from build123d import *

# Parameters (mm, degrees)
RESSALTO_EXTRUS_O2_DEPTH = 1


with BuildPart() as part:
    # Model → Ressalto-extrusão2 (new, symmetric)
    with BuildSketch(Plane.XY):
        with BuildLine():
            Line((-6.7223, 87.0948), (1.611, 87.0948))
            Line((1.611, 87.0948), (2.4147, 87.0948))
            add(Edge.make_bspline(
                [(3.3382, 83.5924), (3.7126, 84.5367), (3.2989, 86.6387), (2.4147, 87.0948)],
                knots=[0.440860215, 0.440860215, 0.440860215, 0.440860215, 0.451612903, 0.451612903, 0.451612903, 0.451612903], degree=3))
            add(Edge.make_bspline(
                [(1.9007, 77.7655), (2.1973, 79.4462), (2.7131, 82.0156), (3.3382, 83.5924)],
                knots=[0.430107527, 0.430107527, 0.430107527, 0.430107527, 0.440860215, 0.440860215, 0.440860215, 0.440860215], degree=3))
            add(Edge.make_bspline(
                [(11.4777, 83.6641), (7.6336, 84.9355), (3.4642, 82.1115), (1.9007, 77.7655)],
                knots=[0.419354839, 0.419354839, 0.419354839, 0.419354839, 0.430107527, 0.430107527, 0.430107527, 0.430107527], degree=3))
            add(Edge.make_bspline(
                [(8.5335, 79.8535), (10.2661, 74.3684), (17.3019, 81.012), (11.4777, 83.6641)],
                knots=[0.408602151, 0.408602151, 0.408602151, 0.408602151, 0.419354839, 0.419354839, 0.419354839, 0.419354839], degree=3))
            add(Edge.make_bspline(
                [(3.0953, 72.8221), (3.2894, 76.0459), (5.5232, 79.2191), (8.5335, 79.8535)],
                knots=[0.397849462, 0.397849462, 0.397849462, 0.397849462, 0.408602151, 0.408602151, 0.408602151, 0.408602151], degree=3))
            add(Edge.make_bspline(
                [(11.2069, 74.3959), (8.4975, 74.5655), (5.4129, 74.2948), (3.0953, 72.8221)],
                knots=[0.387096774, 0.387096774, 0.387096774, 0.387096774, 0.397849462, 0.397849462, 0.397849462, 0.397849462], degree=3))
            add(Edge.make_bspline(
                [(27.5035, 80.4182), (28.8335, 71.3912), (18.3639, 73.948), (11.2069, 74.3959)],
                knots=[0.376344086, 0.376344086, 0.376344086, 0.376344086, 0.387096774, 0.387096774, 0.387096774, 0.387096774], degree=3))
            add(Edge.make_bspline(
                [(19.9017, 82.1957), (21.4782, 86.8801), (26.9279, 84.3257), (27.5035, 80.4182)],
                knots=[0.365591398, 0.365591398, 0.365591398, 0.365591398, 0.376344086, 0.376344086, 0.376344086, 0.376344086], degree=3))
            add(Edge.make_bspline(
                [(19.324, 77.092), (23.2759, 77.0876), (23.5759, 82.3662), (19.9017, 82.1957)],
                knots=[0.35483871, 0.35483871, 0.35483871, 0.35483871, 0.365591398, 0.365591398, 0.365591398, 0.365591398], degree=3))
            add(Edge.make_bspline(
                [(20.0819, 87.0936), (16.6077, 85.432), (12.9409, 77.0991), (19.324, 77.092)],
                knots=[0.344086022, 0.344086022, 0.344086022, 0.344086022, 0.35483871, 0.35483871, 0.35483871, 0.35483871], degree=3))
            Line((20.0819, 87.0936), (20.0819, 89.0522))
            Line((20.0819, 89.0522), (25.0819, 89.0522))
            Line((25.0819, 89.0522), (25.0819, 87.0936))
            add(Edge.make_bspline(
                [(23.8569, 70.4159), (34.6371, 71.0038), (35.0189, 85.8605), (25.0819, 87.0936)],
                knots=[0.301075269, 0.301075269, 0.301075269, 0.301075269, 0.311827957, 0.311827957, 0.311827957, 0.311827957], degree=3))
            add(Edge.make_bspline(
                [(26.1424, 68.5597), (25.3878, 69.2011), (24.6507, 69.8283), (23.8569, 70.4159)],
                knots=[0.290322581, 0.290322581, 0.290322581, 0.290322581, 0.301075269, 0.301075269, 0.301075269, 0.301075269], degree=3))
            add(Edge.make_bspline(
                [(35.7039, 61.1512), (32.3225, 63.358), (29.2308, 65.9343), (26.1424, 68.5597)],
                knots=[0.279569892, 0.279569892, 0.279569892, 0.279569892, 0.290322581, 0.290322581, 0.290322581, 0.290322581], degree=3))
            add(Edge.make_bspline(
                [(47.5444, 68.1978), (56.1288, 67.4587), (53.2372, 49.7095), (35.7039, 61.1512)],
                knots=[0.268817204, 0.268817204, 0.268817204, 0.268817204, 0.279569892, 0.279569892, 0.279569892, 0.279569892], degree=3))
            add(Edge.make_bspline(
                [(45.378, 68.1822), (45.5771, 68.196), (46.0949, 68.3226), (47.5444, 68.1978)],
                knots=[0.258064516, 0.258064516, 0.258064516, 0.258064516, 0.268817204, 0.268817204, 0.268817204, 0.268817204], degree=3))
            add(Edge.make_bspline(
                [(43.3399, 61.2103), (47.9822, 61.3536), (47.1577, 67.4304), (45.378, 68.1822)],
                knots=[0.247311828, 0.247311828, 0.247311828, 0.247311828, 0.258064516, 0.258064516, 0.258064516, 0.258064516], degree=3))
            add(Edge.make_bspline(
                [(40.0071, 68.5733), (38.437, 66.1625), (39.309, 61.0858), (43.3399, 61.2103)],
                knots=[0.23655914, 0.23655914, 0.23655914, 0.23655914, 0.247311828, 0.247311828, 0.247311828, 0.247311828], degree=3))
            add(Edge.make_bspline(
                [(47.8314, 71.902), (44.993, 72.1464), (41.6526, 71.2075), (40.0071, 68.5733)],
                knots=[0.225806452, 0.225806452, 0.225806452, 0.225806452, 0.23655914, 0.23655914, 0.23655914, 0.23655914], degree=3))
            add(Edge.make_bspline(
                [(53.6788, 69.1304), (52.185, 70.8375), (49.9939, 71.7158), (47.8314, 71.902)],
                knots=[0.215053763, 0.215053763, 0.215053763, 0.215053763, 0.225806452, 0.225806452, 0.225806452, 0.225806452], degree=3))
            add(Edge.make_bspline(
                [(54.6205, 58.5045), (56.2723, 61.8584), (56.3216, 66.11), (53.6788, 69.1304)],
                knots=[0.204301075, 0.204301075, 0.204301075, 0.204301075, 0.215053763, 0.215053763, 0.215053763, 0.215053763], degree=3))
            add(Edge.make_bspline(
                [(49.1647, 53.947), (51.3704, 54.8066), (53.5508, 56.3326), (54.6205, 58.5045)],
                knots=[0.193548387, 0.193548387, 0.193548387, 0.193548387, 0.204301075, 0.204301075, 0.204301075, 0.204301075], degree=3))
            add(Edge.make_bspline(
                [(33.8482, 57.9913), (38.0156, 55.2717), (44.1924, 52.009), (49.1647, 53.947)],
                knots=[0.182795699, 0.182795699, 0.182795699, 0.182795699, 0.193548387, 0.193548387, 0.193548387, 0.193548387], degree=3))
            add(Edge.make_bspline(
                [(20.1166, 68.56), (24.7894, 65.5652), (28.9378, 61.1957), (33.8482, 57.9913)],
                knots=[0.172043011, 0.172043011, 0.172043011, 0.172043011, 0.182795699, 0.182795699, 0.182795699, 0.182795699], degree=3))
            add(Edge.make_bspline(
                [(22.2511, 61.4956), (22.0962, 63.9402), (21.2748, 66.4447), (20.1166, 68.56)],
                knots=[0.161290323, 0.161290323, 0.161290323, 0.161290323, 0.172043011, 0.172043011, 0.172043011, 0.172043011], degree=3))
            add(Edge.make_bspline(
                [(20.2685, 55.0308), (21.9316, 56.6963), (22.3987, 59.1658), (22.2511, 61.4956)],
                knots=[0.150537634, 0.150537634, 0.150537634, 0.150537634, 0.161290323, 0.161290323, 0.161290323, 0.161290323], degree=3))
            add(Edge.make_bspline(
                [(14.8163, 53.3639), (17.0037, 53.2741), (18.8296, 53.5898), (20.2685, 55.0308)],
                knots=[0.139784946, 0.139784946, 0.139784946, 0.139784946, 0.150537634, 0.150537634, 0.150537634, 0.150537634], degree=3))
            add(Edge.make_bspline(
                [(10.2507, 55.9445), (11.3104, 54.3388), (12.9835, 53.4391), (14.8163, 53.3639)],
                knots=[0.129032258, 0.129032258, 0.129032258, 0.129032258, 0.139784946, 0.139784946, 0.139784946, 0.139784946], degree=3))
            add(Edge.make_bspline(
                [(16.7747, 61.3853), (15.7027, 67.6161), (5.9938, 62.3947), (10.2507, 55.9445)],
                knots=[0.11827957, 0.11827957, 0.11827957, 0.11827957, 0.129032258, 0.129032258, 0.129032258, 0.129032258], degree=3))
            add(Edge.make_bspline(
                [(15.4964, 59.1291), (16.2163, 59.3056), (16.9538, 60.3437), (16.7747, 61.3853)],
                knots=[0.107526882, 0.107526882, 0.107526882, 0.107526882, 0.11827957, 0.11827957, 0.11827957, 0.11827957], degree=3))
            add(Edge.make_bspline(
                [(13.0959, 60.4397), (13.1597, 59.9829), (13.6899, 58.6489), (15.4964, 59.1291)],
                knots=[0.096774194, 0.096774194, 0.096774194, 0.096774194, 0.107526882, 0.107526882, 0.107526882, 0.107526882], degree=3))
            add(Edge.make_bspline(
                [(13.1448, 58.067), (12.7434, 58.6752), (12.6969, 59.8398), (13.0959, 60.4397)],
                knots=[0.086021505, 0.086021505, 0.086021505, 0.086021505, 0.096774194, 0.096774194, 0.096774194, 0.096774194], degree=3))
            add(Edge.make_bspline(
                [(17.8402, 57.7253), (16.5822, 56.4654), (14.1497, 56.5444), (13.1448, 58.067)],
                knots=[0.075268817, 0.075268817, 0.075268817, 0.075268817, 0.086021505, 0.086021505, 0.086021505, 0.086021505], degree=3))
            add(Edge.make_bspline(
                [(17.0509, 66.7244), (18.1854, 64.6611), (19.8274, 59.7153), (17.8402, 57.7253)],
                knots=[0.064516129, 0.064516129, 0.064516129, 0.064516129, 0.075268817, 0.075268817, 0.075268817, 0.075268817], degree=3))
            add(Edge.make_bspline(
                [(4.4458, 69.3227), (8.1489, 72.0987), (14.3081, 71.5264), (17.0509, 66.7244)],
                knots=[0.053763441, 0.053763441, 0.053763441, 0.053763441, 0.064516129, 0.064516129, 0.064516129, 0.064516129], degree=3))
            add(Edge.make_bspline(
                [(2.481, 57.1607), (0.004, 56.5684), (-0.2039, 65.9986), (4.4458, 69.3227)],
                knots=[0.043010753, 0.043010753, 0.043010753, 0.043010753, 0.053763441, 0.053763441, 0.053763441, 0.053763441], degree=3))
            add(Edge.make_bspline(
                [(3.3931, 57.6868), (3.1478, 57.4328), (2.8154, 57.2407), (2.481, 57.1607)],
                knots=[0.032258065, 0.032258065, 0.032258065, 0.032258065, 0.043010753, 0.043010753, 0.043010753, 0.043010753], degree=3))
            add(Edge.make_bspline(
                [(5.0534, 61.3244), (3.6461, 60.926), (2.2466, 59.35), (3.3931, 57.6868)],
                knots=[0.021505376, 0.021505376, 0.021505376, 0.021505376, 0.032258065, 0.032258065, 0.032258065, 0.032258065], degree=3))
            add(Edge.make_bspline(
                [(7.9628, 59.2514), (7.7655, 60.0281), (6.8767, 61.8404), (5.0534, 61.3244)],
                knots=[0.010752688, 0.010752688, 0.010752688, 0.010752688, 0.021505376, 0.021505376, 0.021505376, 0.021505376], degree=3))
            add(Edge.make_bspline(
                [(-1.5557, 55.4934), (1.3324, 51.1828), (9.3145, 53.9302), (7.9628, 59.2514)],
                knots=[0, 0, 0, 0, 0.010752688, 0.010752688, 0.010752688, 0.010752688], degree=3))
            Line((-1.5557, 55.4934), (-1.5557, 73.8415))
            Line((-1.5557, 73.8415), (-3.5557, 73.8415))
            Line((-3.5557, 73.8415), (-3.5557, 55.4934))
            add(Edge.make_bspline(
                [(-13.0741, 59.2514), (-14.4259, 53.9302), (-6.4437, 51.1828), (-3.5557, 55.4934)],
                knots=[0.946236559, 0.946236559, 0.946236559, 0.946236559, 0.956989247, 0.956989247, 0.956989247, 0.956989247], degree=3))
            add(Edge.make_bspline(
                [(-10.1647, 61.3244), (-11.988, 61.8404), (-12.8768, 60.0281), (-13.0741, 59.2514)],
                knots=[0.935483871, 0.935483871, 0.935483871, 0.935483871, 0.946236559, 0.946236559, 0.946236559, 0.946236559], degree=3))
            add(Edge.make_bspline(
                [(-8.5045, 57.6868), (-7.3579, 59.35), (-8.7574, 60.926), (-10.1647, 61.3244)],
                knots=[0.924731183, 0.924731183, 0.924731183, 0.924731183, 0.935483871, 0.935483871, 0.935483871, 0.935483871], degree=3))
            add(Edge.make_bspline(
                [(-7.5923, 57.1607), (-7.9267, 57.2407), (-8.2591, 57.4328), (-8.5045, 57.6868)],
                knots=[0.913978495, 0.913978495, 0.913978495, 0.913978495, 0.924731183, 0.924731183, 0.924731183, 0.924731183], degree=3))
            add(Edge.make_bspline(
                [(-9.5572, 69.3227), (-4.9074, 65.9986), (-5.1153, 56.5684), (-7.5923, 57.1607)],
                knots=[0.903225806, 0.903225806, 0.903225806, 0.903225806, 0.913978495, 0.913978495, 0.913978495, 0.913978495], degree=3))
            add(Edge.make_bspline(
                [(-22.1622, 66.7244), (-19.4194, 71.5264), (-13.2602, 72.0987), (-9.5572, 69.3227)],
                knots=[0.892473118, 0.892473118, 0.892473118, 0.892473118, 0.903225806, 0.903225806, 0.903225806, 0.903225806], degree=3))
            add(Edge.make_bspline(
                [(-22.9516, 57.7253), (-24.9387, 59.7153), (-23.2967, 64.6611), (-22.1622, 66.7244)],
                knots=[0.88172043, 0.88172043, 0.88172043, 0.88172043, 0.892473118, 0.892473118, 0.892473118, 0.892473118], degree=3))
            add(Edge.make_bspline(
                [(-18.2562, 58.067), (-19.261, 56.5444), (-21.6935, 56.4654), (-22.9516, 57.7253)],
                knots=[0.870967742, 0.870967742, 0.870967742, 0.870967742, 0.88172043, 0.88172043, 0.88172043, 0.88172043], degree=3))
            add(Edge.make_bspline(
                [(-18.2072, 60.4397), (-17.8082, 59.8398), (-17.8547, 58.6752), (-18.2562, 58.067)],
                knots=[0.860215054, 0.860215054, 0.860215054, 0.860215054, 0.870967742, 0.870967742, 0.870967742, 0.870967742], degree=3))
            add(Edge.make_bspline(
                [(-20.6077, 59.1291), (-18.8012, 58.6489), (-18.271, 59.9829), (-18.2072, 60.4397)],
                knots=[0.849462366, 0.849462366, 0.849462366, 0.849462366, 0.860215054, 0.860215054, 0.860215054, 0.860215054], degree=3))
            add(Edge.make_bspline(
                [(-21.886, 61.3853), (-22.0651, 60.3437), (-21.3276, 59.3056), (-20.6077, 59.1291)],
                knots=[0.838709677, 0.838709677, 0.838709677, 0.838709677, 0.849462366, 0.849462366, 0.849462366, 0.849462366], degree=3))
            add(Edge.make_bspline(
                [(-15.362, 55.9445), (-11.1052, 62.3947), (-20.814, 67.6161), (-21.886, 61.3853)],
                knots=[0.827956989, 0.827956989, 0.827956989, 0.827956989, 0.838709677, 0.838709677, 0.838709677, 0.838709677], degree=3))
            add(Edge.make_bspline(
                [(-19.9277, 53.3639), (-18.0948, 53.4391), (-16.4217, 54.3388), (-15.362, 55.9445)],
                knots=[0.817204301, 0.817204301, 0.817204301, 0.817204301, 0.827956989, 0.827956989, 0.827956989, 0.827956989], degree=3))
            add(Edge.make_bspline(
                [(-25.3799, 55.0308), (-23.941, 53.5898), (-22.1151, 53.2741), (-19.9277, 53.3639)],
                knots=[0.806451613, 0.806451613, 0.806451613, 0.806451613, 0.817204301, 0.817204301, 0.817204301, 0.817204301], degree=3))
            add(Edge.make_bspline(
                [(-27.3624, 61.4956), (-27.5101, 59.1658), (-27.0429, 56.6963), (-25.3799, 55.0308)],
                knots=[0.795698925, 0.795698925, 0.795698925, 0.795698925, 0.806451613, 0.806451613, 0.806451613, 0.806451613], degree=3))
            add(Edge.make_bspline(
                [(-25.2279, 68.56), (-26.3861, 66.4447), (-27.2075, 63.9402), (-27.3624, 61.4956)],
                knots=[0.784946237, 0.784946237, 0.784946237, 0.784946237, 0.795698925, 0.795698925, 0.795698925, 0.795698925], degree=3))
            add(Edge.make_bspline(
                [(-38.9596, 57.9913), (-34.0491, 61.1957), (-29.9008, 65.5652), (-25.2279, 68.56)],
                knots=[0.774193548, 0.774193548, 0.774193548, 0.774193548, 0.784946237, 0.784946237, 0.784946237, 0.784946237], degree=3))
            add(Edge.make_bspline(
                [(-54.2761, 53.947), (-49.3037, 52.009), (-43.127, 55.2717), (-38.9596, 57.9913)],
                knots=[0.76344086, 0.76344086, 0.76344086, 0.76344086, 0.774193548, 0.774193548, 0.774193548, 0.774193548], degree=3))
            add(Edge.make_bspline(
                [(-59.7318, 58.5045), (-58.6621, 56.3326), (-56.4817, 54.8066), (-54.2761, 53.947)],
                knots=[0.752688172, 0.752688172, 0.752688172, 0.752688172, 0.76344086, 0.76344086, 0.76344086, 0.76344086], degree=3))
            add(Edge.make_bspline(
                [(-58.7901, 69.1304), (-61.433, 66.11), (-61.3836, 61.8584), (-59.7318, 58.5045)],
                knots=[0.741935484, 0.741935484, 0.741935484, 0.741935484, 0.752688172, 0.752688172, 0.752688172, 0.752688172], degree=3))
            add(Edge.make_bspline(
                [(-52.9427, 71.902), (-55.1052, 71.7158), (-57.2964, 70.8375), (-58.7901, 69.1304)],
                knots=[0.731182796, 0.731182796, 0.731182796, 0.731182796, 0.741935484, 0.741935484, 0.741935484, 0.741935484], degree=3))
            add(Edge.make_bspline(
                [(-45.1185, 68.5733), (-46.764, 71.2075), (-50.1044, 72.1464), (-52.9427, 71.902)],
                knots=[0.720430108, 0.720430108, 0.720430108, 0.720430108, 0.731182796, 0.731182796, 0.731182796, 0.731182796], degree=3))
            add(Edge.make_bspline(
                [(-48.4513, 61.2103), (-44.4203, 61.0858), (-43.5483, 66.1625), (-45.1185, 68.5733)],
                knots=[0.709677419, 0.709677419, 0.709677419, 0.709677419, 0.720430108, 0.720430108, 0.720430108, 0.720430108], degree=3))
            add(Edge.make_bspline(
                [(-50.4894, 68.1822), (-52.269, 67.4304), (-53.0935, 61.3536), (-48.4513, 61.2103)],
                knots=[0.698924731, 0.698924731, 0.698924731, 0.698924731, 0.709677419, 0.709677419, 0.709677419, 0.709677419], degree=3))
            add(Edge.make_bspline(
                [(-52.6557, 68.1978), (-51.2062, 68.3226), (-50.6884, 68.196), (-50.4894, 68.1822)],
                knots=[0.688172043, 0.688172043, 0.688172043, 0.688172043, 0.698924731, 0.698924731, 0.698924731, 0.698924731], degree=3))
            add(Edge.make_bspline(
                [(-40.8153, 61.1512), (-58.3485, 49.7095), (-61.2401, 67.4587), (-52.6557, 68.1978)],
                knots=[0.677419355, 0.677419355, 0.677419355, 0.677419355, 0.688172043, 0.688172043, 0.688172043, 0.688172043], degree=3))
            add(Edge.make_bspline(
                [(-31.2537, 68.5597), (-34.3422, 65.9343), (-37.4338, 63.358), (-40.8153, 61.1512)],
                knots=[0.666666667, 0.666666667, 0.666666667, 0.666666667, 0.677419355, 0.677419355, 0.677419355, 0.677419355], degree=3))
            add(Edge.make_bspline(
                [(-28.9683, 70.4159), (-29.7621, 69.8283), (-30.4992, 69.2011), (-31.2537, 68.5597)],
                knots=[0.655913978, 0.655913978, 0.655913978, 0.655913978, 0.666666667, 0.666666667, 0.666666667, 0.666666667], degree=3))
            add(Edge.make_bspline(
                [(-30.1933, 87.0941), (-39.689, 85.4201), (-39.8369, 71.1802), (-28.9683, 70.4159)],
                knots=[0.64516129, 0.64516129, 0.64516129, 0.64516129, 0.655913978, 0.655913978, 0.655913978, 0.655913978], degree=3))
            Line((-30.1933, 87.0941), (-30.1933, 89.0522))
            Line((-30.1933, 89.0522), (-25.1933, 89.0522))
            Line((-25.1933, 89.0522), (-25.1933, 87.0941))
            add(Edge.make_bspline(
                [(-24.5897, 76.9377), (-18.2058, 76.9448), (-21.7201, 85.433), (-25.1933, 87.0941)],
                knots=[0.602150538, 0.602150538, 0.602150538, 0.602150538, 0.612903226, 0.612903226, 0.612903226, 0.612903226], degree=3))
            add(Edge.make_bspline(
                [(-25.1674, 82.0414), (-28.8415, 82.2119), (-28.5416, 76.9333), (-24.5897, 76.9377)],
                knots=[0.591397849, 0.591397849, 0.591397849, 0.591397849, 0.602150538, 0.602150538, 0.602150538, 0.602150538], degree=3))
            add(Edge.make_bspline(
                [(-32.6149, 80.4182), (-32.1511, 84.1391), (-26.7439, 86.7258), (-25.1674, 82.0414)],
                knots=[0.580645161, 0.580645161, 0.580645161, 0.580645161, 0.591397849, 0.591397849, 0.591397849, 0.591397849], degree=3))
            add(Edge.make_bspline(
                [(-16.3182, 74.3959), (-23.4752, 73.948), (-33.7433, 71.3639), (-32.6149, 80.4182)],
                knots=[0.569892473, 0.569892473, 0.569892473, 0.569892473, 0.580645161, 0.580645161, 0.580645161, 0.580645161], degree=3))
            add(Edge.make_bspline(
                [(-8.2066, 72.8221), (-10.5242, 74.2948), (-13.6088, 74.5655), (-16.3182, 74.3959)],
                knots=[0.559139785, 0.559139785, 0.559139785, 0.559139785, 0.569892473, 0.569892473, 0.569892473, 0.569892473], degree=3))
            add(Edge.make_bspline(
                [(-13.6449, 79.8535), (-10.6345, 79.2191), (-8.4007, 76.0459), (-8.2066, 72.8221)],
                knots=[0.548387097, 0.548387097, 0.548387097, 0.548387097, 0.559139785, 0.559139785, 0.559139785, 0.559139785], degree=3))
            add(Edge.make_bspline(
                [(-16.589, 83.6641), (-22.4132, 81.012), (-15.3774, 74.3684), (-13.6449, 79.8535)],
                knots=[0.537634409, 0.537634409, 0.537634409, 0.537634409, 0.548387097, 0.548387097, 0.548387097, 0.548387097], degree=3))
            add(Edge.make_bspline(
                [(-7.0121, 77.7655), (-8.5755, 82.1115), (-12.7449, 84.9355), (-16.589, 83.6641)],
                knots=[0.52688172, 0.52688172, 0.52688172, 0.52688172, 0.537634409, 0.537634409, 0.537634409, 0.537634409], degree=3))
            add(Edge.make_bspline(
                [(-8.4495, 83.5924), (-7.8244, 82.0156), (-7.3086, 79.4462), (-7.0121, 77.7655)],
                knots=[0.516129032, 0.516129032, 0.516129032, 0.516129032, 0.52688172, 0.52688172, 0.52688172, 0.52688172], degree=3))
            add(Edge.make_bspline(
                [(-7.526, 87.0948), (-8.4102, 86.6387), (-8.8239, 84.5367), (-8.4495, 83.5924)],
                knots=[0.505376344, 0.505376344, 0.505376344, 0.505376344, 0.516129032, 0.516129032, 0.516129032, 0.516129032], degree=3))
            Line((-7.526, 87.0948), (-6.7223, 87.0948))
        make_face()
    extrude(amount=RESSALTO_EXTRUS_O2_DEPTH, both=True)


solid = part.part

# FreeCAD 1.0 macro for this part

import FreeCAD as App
import Part
import Sketcher

V = App.Vector
Q = App.Units.Quantity

doc = App.newDocument("Part")
body = doc.addObject("PartDesign::Body", "Body")

# Sketch on XY plane
sketch1 = body.newObject("Sketcher::SketchObject", "Sketch")
sketch1.AttachmentSupport = (doc.getObject("XY_Plane"), [""])
sketch1.MapMode = "FlatFace"
sketch1.addGeometry(Part.BSplineCurve([V(3.3382, 83.5924, 0), V(3.7126, 84.5367, 0), V(3.2989, 86.6387, 0), V(2.4147, 87.0948, 0)], [4, 4], [0.440860215, 0.451612903], False, 3, [1, 1, 1, 1], False), False)
sketch1.addGeometry(Part.LineSegment(V(2.4147, 87.0948, 0), V(-7.526, 87.0948, 0)), False)
sketch1.addGeometry(Part.BSplineCurve([V(-7.526, 87.0948, 0), V(-8.4102, 86.6387, 0), V(-8.8239, 84.5367, 0), V(-8.4495, 83.5924, 0)], [4, 4], [0.505376344, 0.516129032], False, 3, [1, 1, 1, 1], False), False)
sketch1.addGeometry(Part.BSplineCurve([V(-8.4495, 83.5924, 0), V(-7.8244, 82.0156, 0), V(-7.3086, 79.4462, 0), V(-7.0121, 77.7655, 0)], [4, 4], [0.516129032, 0.52688172], False, 3, [1, 1, 1, 1], False), False)
sketch1.addGeometry(Part.BSplineCurve([V(-7.0121, 77.7655, 0), V(-8.5755, 82.1115, 0), V(-12.7449, 84.9355, 0), V(-16.589, 83.6641, 0)], [4, 4], [0.52688172, 0.537634409], False, 3, [1, 1, 1, 1], False), False)
sketch1.addGeometry(Part.BSplineCurve([V(-16.589, 83.6641, 0), V(-22.4132, 81.012, 0), V(-15.3774, 74.3684, 0), V(-13.6449, 79.8535, 0)], [4, 4], [0.537634409, 0.548387097], False, 3, [1, 1, 1, 1], False), False)
sketch1.addGeometry(Part.BSplineCurve([V(-13.6449, 79.8535, 0), V(-10.6345, 79.2191, 0), V(-8.4007, 76.0459, 0), V(-8.2066, 72.8221, 0)], [4, 4], [0.548387097, 0.559139785], False, 3, [1, 1, 1, 1], False), False)
sketch1.addGeometry(Part.BSplineCurve([V(-8.2066, 72.8221, 0), V(-10.5242, 74.2948, 0), V(-13.6088, 74.5655, 0), V(-16.3182, 74.3959, 0)], [4, 4], [0.559139785, 0.569892473], False, 3, [1, 1, 1, 1], False), False)
sketch1.addGeometry(Part.BSplineCurve([V(-16.3182, 74.3959, 0), V(-23.4752, 73.948, 0), V(-33.7433, 71.3639, 0), V(-32.6149, 80.4182, 0)], [4, 4], [0.569892473, 0.580645161], False, 3, [1, 1, 1, 1], False), False)
sketch1.addGeometry(Part.BSplineCurve([V(-32.6149, 80.4182, 0), V(-32.1511, 84.1391, 0), V(-26.7439, 86.7258, 0), V(-25.1674, 82.0414, 0)], [4, 4], [0.580645161, 0.591397849], False, 3, [1, 1, 1, 1], False), False)
sketch1.addGeometry(Part.BSplineCurve([V(-25.1674, 82.0414, 0), V(-28.8415, 82.2119, 0), V(-28.5416, 76.9333, 0), V(-24.5897, 76.9377, 0)], [4, 4], [0.591397849, 0.602150538], False, 3, [1, 1, 1, 1], False), False)
sketch1.addGeometry(Part.BSplineCurve([V(-24.5897, 76.9377, 0), V(-18.2058, 76.9448, 0), V(-21.7201, 85.433, 0), V(-25.1933, 87.0941, 0)], [4, 4], [0.602150538, 0.612903226], False, 3, [1, 1, 1, 1], False), False)
sketch1.addGeometry(Part.LineSegment(V(-25.1933, 87.0941, 0), V(-25.1933, 89.0522, 0)), False)
sketch1.addGeometry(Part.LineSegment(V(-25.1933, 89.0522, 0), V(-30.1933, 89.0522, 0)), False)
sketch1.addGeometry(Part.LineSegment(V(-30.1933, 89.0522, 0), V(-30.1933, 87.0941, 0)), False)
sketch1.addGeometry(Part.BSplineCurve([V(-30.1933, 87.0941, 0), V(-39.689, 85.4201, 0), V(-39.8369, 71.1802, 0), V(-28.9683, 70.4159, 0)], [4, 4], [0.64516129, 0.655913978], False, 3, [1, 1, 1, 1], False), False)
sketch1.addGeometry(Part.BSplineCurve([V(-28.9683, 70.4159, 0), V(-29.7621, 69.8283, 0), V(-30.4992, 69.2011, 0), V(-31.2537, 68.5597, 0)], [4, 4], [0.655913978, 0.666666667], False, 3, [1, 1, 1, 1], False), False)
sketch1.addGeometry(Part.BSplineCurve([V(-31.2537, 68.5597, 0), V(-34.3422, 65.9343, 0), V(-37.4338, 63.358, 0), V(-40.8153, 61.1512, 0)], [4, 4], [0.666666667, 0.677419355], False, 3, [1, 1, 1, 1], False), False)
sketch1.addGeometry(Part.BSplineCurve([V(-40.8153, 61.1512, 0), V(-58.3485, 49.7095, 0), V(-61.2401, 67.4587, 0), V(-52.6557, 68.1978, 0)], [4, 4], [0.677419355, 0.688172043], False, 3, [1, 1, 1, 1], False), False)
sketch1.addGeometry(Part.BSplineCurve([V(-52.6557, 68.1978, 0), V(-51.2062, 68.3226, 0), V(-50.6884, 68.196, 0), V(-50.4894, 68.1822, 0)], [4, 4], [0.688172043, 0.698924731], False, 3, [1, 1, 1, 1], False), False)
sketch1.addGeometry(Part.BSplineCurve([V(-50.4894, 68.1822, 0), V(-52.269, 67.4304, 0), V(-53.0935, 61.3536, 0), V(-48.4513, 61.2103, 0)], [4, 4], [0.698924731, 0.709677419], False, 3, [1, 1, 1, 1], False), False)
sketch1.addGeometry(Part.BSplineCurve([V(-48.4513, 61.2103, 0), V(-44.4203, 61.0858, 0), V(-43.5483, 66.1625, 0), V(-45.1185, 68.5733, 0)], [4, 4], [0.709677419, 0.720430108], False, 3, [1, 1, 1, 1], False), False)
sketch1.addGeometry(Part.BSplineCurve([V(-45.1185, 68.5733, 0), V(-46.764, 71.2075, 0), V(-50.1044, 72.1464, 0), V(-52.9427, 71.902, 0)], [4, 4], [0.720430108, 0.731182796], False, 3, [1, 1, 1, 1], False), False)
sketch1.addGeometry(Part.BSplineCurve([V(-52.9427, 71.902, 0), V(-55.1052, 71.7158, 0), V(-57.2964, 70.8375, 0), V(-58.7901, 69.1304, 0)], [4, 4], [0.731182796, 0.741935484], False, 3, [1, 1, 1, 1], False), False)
sketch1.addGeometry(Part.BSplineCurve([V(-58.7901, 69.1304, 0), V(-61.433, 66.11, 0), V(-61.3836, 61.8584, 0), V(-59.7318, 58.5045, 0)], [4, 4], [0.741935484, 0.752688172], False, 3, [1, 1, 1, 1], False), False)
sketch1.addGeometry(Part.BSplineCurve([V(-59.7318, 58.5045, 0), V(-58.6621, 56.3326, 0), V(-56.4817, 54.8066, 0), V(-54.2761, 53.947, 0)], [4, 4], [0.752688172, 0.76344086], False, 3, [1, 1, 1, 1], False), False)
sketch1.addGeometry(Part.BSplineCurve([V(-54.2761, 53.947, 0), V(-49.3037, 52.009, 0), V(-43.127, 55.2717, 0), V(-38.9596, 57.9913, 0)], [4, 4], [0.76344086, 0.774193548], False, 3, [1, 1, 1, 1], False), False)
sketch1.addGeometry(Part.BSplineCurve([V(-38.9596, 57.9913, 0), V(-34.0491, 61.1957, 0), V(-29.9008, 65.5652, 0), V(-25.2279, 68.56, 0)], [4, 4], [0.774193548, 0.784946237], False, 3, [1, 1, 1, 1], False), False)
sketch1.addGeometry(Part.BSplineCurve([V(-25.2279, 68.56, 0), V(-26.3861, 66.4447, 0), V(-27.2075, 63.9402, 0), V(-27.3624, 61.4956, 0)], [4, 4], [0.784946237, 0.795698925], False, 3, [1, 1, 1, 1], False), False)
sketch1.addGeometry(Part.BSplineCurve([V(-27.3624, 61.4956, 0), V(-27.5101, 59.1658, 0), V(-27.0429, 56.6963, 0), V(-25.3799, 55.0308, 0)], [4, 4], [0.795698925, 0.806451613], False, 3, [1, 1, 1, 1], False), False)
sketch1.addGeometry(Part.BSplineCurve([V(-25.3799, 55.0308, 0), V(-23.941, 53.5898, 0), V(-22.1151, 53.2741, 0), V(-19.9277, 53.3639, 0)], [4, 4], [0.806451613, 0.817204301], False, 3, [1, 1, 1, 1], False), False)
sketch1.addGeometry(Part.BSplineCurve([V(-19.9277, 53.3639, 0), V(-18.0948, 53.4391, 0), V(-16.4217, 54.3388, 0), V(-15.362, 55.9445, 0)], [4, 4], [0.817204301, 0.827956989], False, 3, [1, 1, 1, 1], False), False)
sketch1.addGeometry(Part.BSplineCurve([V(-15.362, 55.9445, 0), V(-11.1052, 62.3947, 0), V(-20.814, 67.6161, 0), V(-21.886, 61.3853, 0)], [4, 4], [0.827956989, 0.838709677], False, 3, [1, 1, 1, 1], False), False)
sketch1.addGeometry(Part.BSplineCurve([V(-21.886, 61.3853, 0), V(-22.0651, 60.3437, 0), V(-21.3276, 59.3056, 0), V(-20.6077, 59.1291, 0)], [4, 4], [0.838709677, 0.849462366], False, 3, [1, 1, 1, 1], False), False)
sketch1.addGeometry(Part.BSplineCurve([V(-20.6077, 59.1291, 0), V(-18.8012, 58.6489, 0), V(-18.271, 59.9829, 0), V(-18.2072, 60.4397, 0)], [4, 4], [0.849462366, 0.860215054], False, 3, [1, 1, 1, 1], False), False)
sketch1.addGeometry(Part.BSplineCurve([V(-18.2072, 60.4397, 0), V(-17.8082, 59.8398, 0), V(-17.8547, 58.6752, 0), V(-18.2562, 58.067, 0)], [4, 4], [0.860215054, 0.870967742], False, 3, [1, 1, 1, 1], False), False)
sketch1.addGeometry(Part.BSplineCurve([V(-18.2562, 58.067, 0), V(-19.261, 56.5444, 0), V(-21.6935, 56.4654, 0), V(-22.9516, 57.7253, 0)], [4, 4], [0.870967742, 0.88172043], False, 3, [1, 1, 1, 1], False), False)
sketch1.addGeometry(Part.BSplineCurve([V(-22.9516, 57.7253, 0), V(-24.9387, 59.7153, 0), V(-23.2967, 64.6611, 0), V(-22.1622, 66.7244, 0)], [4, 4], [0.88172043, 0.892473118], False, 3, [1, 1, 1, 1], False), False)
sketch1.addGeometry(Part.BSplineCurve([V(-22.1622, 66.7244, 0), V(-19.4194, 71.5264, 0), V(-13.2602, 72.0987, 0), V(-9.5572, 69.3227, 0)], [4, 4], [0.892473118, 0.903225806], False, 3, [1, 1, 1, 1], False), False)
sketch1.addGeometry(Part.BSplineCurve([V(-9.5572, 69.3227, 0), V(-4.9074, 65.9986, 0), V(-5.1153, 56.5684, 0), V(-7.5923, 57.1607, 0)], [4, 4], [0.903225806, 0.913978495], False, 3, [1, 1, 1, 1], False), False)
sketch1.addGeometry(Part.BSplineCurve([V(-7.5923, 57.1607, 0), V(-7.9267, 57.2407, 0), V(-8.2591, 57.4328, 0), V(-8.5045, 57.6868, 0)], [4, 4], [0.913978495, 0.924731183], False, 3, [1, 1, 1, 1], False), False)
sketch1.addGeometry(Part.BSplineCurve([V(-8.5045, 57.6868, 0), V(-7.3579, 59.35, 0), V(-8.7574, 60.926, 0), V(-10.1647, 61.3244, 0)], [4, 4], [0.924731183, 0.935483871], False, 3, [1, 1, 1, 1], False), False)
sketch1.addGeometry(Part.BSplineCurve([V(-10.1647, 61.3244, 0), V(-11.988, 61.8404, 0), V(-12.8768, 60.0281, 0), V(-13.0741, 59.2514, 0)], [4, 4], [0.935483871, 0.946236559], False, 3, [1, 1, 1, 1], False), False)
sketch1.addGeometry(Part.BSplineCurve([V(-13.0741, 59.2514, 0), V(-14.4259, 53.9302, 0), V(-6.4437, 51.1828, 0), V(-3.5557, 55.4934, 0)], [4, 4], [0.946236559, 0.956989247], False, 3, [1, 1, 1, 1], False), False)
sketch1.addGeometry(Part.LineSegment(V(-3.5557, 55.4934, 0), V(-3.5557, 73.8415, 0)), False)
sketch1.addGeometry(Part.LineSegment(V(-3.5557, 73.8415, 0), V(-1.5557, 73.8415, 0)), False)
sketch1.addGeometry(Part.LineSegment(V(-1.5557, 73.8415, 0), V(-1.5557, 55.4934, 0)), False)
sketch1.addGeometry(Part.BSplineCurve([V(-1.5557, 55.4934, 0), V(1.3324, 51.1828, 0), V(9.3145, 53.9302, 0), V(7.9628, 59.2514, 0)], [4, 4], [0, 0.010752688], False, 3, [1, 1, 1, 1], False), False)
sketch1.addGeometry(Part.BSplineCurve([V(7.9628, 59.2514, 0), V(7.7655, 60.0281, 0), V(6.8767, 61.8404, 0), V(5.0534, 61.3244, 0)], [4, 4], [0.010752688, 0.021505376], False, 3, [1, 1, 1, 1], False), False)
sketch1.addGeometry(Part.BSplineCurve([V(5.0534, 61.3244, 0), V(3.6461, 60.926, 0), V(2.2466, 59.35, 0), V(3.3931, 57.6868, 0)], [4, 4], [0.021505376, 0.032258065], False, 3, [1, 1, 1, 1], False), False)
sketch1.addGeometry(Part.BSplineCurve([V(3.3931, 57.6868, 0), V(3.1478, 57.4328, 0), V(2.8154, 57.2407, 0), V(2.481, 57.1607, 0)], [4, 4], [0.032258065, 0.043010753], False, 3, [1, 1, 1, 1], False), False)
sketch1.addGeometry(Part.BSplineCurve([V(2.481, 57.1607, 0), V(0.004, 56.5684, 0), V(-0.2039, 65.9986, 0), V(4.4458, 69.3227, 0)], [4, 4], [0.043010753, 0.053763441], False, 3, [1, 1, 1, 1], False), False)
sketch1.addGeometry(Part.BSplineCurve([V(4.4458, 69.3227, 0), V(8.1489, 72.0987, 0), V(14.3081, 71.5264, 0), V(17.0509, 66.7244, 0)], [4, 4], [0.053763441, 0.064516129], False, 3, [1, 1, 1, 1], False), False)
sketch1.addGeometry(Part.BSplineCurve([V(17.0509, 66.7244, 0), V(18.1854, 64.6611, 0), V(19.8274, 59.7153, 0), V(17.8402, 57.7253, 0)], [4, 4], [0.064516129, 0.075268817], False, 3, [1, 1, 1, 1], False), False)
sketch1.addGeometry(Part.BSplineCurve([V(17.8402, 57.7253, 0), V(16.5822, 56.4654, 0), V(14.1497, 56.5444, 0), V(13.1448, 58.067, 0)], [4, 4], [0.075268817, 0.086021505], False, 3, [1, 1, 1, 1], False), False)
sketch1.addGeometry(Part.BSplineCurve([V(13.1448, 58.067, 0), V(12.7434, 58.6752, 0), V(12.6969, 59.8398, 0), V(13.0959, 60.4397, 0)], [4, 4], [0.086021505, 0.096774194], False, 3, [1, 1, 1, 1], False), False)
sketch1.addGeometry(Part.BSplineCurve([V(13.0959, 60.4397, 0), V(13.1597, 59.9829, 0), V(13.6899, 58.6489, 0), V(15.4964, 59.1291, 0)], [4, 4], [0.096774194, 0.107526882], False, 3, [1, 1, 1, 1], False), False)
sketch1.addGeometry(Part.BSplineCurve([V(15.4964, 59.1291, 0), V(16.2163, 59.3056, 0), V(16.9538, 60.3437, 0), V(16.7747, 61.3853, 0)], [4, 4], [0.107526882, 0.11827957], False, 3, [1, 1, 1, 1], False), False)
sketch1.addGeometry(Part.BSplineCurve([V(16.7747, 61.3853, 0), V(15.7027, 67.6161, 0), V(5.9938, 62.3947, 0), V(10.2507, 55.9445, 0)], [4, 4], [0.11827957, 0.129032258], False, 3, [1, 1, 1, 1], False), False)
sketch1.addGeometry(Part.BSplineCurve([V(10.2507, 55.9445, 0), V(11.3104, 54.3388, 0), V(12.9835, 53.4391, 0), V(14.8163, 53.3639, 0)], [4, 4], [0.129032258, 0.139784946], False, 3, [1, 1, 1, 1], False), False)
sketch1.addGeometry(Part.BSplineCurve([V(14.8163, 53.3639, 0), V(17.0037, 53.2741, 0), V(18.8296, 53.5898, 0), V(20.2685, 55.0308, 0)], [4, 4], [0.139784946, 0.150537634], False, 3, [1, 1, 1, 1], False), False)
sketch1.addGeometry(Part.BSplineCurve([V(20.2685, 55.0308, 0), V(21.9316, 56.6963, 0), V(22.3987, 59.1658, 0), V(22.2511, 61.4956, 0)], [4, 4], [0.150537634, 0.161290323], False, 3, [1, 1, 1, 1], False), False)
sketch1.addGeometry(Part.BSplineCurve([V(22.2511, 61.4956, 0), V(22.0962, 63.9402, 0), V(21.2748, 66.4447, 0), V(20.1166, 68.56, 0)], [4, 4], [0.161290323, 0.172043011], False, 3, [1, 1, 1, 1], False), False)
sketch1.addGeometry(Part.BSplineCurve([V(20.1166, 68.56, 0), V(24.7894, 65.5652, 0), V(28.9378, 61.1957, 0), V(33.8482, 57.9913, 0)], [4, 4], [0.172043011, 0.182795699], False, 3, [1, 1, 1, 1], False), False)
sketch1.addGeometry(Part.BSplineCurve([V(33.8482, 57.9913, 0), V(38.0156, 55.2717, 0), V(44.1924, 52.009, 0), V(49.1647, 53.947, 0)], [4, 4], [0.182795699, 0.193548387], False, 3, [1, 1, 1, 1], False), False)
sketch1.addGeometry(Part.BSplineCurve([V(49.1647, 53.947, 0), V(51.3704, 54.8066, 0), V(53.5508, 56.3326, 0), V(54.6205, 58.5045, 0)], [4, 4], [0.193548387, 0.204301075], False, 3, [1, 1, 1, 1], False), False)
sketch1.addGeometry(Part.BSplineCurve([V(54.6205, 58.5045, 0), V(56.2723, 61.8584, 0), V(56.3216, 66.11, 0), V(53.6788, 69.1304, 0)], [4, 4], [0.204301075, 0.215053763], False, 3, [1, 1, 1, 1], False), False)
sketch1.addGeometry(Part.BSplineCurve([V(53.6788, 69.1304, 0), V(52.185, 70.8375, 0), V(49.9939, 71.7158, 0), V(47.8314, 71.902, 0)], [4, 4], [0.215053763, 0.225806452], False, 3, [1, 1, 1, 1], False), False)
sketch1.addGeometry(Part.BSplineCurve([V(47.8314, 71.902, 0), V(44.993, 72.1464, 0), V(41.6526, 71.2075, 0), V(40.0071, 68.5733, 0)], [4, 4], [0.225806452, 0.23655914], False, 3, [1, 1, 1, 1], False), False)
sketch1.addGeometry(Part.BSplineCurve([V(40.0071, 68.5733, 0), V(38.437, 66.1625, 0), V(39.309, 61.0858, 0), V(43.3399, 61.2103, 0)], [4, 4], [0.23655914, 0.247311828], False, 3, [1, 1, 1, 1], False), False)
sketch1.addGeometry(Part.BSplineCurve([V(43.3399, 61.2103, 0), V(47.9822, 61.3536, 0), V(47.1577, 67.4304, 0), V(45.378, 68.1822, 0)], [4, 4], [0.247311828, 0.258064516], False, 3, [1, 1, 1, 1], False), False)
sketch1.addGeometry(Part.BSplineCurve([V(45.378, 68.1822, 0), V(45.5771, 68.196, 0), V(46.0949, 68.3226, 0), V(47.5444, 68.1978, 0)], [4, 4], [0.258064516, 0.268817204], False, 3, [1, 1, 1, 1], False), False)
sketch1.addGeometry(Part.BSplineCurve([V(47.5444, 68.1978, 0), V(56.1288, 67.4587, 0), V(53.2372, 49.7095, 0), V(35.7039, 61.1512, 0)], [4, 4], [0.268817204, 0.279569892], False, 3, [1, 1, 1, 1], False), False)
sketch1.addGeometry(Part.BSplineCurve([V(35.7039, 61.1512, 0), V(32.3225, 63.358, 0), V(29.2308, 65.9343, 0), V(26.1424, 68.5597, 0)], [4, 4], [0.279569892, 0.290322581], False, 3, [1, 1, 1, 1], False), False)
sketch1.addGeometry(Part.BSplineCurve([V(26.1424, 68.5597, 0), V(25.3878, 69.2011, 0), V(24.6507, 69.8283, 0), V(23.8569, 70.4159, 0)], [4, 4], [0.290322581, 0.301075269], False, 3, [1, 1, 1, 1], False), False)
sketch1.addGeometry(Part.BSplineCurve([V(23.8569, 70.4159, 0), V(34.6371, 71.0038, 0), V(35.0189, 85.8605, 0), V(25.0819, 87.0936, 0)], [4, 4], [0.301075269, 0.311827957], False, 3, [1, 1, 1, 1], False), False)
sketch1.addGeometry(Part.LineSegment(V(25.0819, 87.0936, 0), V(25.0819, 89.0522, 0)), False)
sketch1.addGeometry(Part.LineSegment(V(25.0819, 89.0522, 0), V(20.0819, 89.0522, 0)), False)
sketch1.addGeometry(Part.LineSegment(V(20.0819, 89.0522, 0), V(20.0819, 87.0936, 0)), False)
sketch1.addGeometry(Part.BSplineCurve([V(20.0819, 87.0936, 0), V(16.6077, 85.432, 0), V(12.9409, 77.0991, 0), V(19.324, 77.092, 0)], [4, 4], [0.344086022, 0.35483871], False, 3, [1, 1, 1, 1], False), False)
sketch1.addGeometry(Part.BSplineCurve([V(19.324, 77.092, 0), V(23.2759, 77.0876, 0), V(23.5759, 82.3662, 0), V(19.9017, 82.1957, 0)], [4, 4], [0.35483871, 0.365591398], False, 3, [1, 1, 1, 1], False), False)
sketch1.addGeometry(Part.BSplineCurve([V(19.9017, 82.1957, 0), V(21.4782, 86.8801, 0), V(26.9279, 84.3257, 0), V(27.5035, 80.4182, 0)], [4, 4], [0.365591398, 0.376344086], False, 3, [1, 1, 1, 1], False), False)
sketch1.addGeometry(Part.BSplineCurve([V(27.5035, 80.4182, 0), V(28.8335, 71.3912, 0), V(18.3639, 73.948, 0), V(11.2069, 74.3959, 0)], [4, 4], [0.376344086, 0.387096774], False, 3, [1, 1, 1, 1], False), False)
sketch1.addGeometry(Part.BSplineCurve([V(11.2069, 74.3959, 0), V(8.4975, 74.5655, 0), V(5.4129, 74.2948, 0), V(3.0953, 72.8221, 0)], [4, 4], [0.387096774, 0.397849462], False, 3, [1, 1, 1, 1], False), False)
sketch1.addGeometry(Part.BSplineCurve([V(3.0953, 72.8221, 0), V(3.2894, 76.0459, 0), V(5.5232, 79.2191, 0), V(8.5335, 79.8535, 0)], [4, 4], [0.397849462, 0.408602151], False, 3, [1, 1, 1, 1], False), False)
sketch1.addGeometry(Part.BSplineCurve([V(8.5335, 79.8535, 0), V(10.2661, 74.3684, 0), V(17.3019, 81.012, 0), V(11.4777, 83.6641, 0)], [4, 4], [0.408602151, 0.419354839], False, 3, [1, 1, 1, 1], False), False)
sketch1.addGeometry(Part.BSplineCurve([V(11.4777, 83.6641, 0), V(7.6336, 84.9355, 0), V(3.4642, 82.1115, 0), V(1.9007, 77.7655, 0)], [4, 4], [0.419354839, 0.430107527], False, 3, [1, 1, 1, 1], False), False)
sketch1.addGeometry(Part.BSplineCurve([V(1.9007, 77.7655, 0), V(2.1973, 79.4462, 0), V(2.7131, 82.0156, 0), V(3.3382, 83.5924, 0)], [4, 4], [0.430107527, 0.440860215], False, 3, [1, 1, 1, 1], False), False)
sketch1.addConstraint(Sketcher.Constraint("Block", 0))
sketch1.addConstraint(Sketcher.Constraint("Block", 2))
sketch1.addConstraint(Sketcher.Constraint("Block", 3))
sketch1.addConstraint(Sketcher.Constraint("Block", 4))
sketch1.addConstraint(Sketcher.Constraint("Block", 5))
sketch1.addConstraint(Sketcher.Constraint("Block", 6))
sketch1.addConstraint(Sketcher.Constraint("Block", 7))
sketch1.addConstraint(Sketcher.Constraint("Block", 8))
sketch1.addConstraint(Sketcher.Constraint("Block", 9))
sketch1.addConstraint(Sketcher.Constraint("Block", 10))
sketch1.addConstraint(Sketcher.Constraint("Block", 11))
sketch1.addConstraint(Sketcher.Constraint("Block", 15))
sketch1.addConstraint(Sketcher.Constraint("Block", 16))
sketch1.addConstraint(Sketcher.Constraint("Block", 17))
sketch1.addConstraint(Sketcher.Constraint("Block", 18))
sketch1.addConstraint(Sketcher.Constraint("Block", 19))
sketch1.addConstraint(Sketcher.Constraint("Block", 20))
sketch1.addConstraint(Sketcher.Constraint("Block", 21))
sketch1.addConstraint(Sketcher.Constraint("Block", 22))
sketch1.addConstraint(Sketcher.Constraint("Block", 23))
sketch1.addConstraint(Sketcher.Constraint("Block", 24))
sketch1.addConstraint(Sketcher.Constraint("Block", 25))
sketch1.addConstraint(Sketcher.Constraint("Block", 26))
sketch1.addConstraint(Sketcher.Constraint("Block", 27))
sketch1.addConstraint(Sketcher.Constraint("Block", 28))
sketch1.addConstraint(Sketcher.Constraint("Block", 29))
sketch1.addConstraint(Sketcher.Constraint("Block", 30))
sketch1.addConstraint(Sketcher.Constraint("Block", 31))
sketch1.addConstraint(Sketcher.Constraint("Block", 32))
sketch1.addConstraint(Sketcher.Constraint("Block", 33))
sketch1.addConstraint(Sketcher.Constraint("Block", 34))
sketch1.addConstraint(Sketcher.Constraint("Block", 35))
sketch1.addConstraint(Sketcher.Constraint("Block", 36))
sketch1.addConstraint(Sketcher.Constraint("Block", 37))
sketch1.addConstraint(Sketcher.Constraint("Block", 38))
sketch1.addConstraint(Sketcher.Constraint("Block", 39))
sketch1.addConstraint(Sketcher.Constraint("Block", 40))
sketch1.addConstraint(Sketcher.Constraint("Block", 41))
sketch1.addConstraint(Sketcher.Constraint("Block", 42))
sketch1.addConstraint(Sketcher.Constraint("Block", 43))
sketch1.addConstraint(Sketcher.Constraint("Block", 47))
sketch1.addConstraint(Sketcher.Constraint("Block", 48))
sketch1.addConstraint(Sketcher.Constraint("Block", 49))
sketch1.addConstraint(Sketcher.Constraint("Block", 50))
sketch1.addConstraint(Sketcher.Constraint("Block", 51))
sketch1.addConstraint(Sketcher.Constraint("Block", 52))
sketch1.addConstraint(Sketcher.Constraint("Block", 53))
sketch1.addConstraint(Sketcher.Constraint("Block", 54))
sketch1.addConstraint(Sketcher.Constraint("Block", 55))
sketch1.addConstraint(Sketcher.Constraint("Block", 56))
sketch1.addConstraint(Sketcher.Constraint("Block", 57))
sketch1.addConstraint(Sketcher.Constraint("Block", 58))
sketch1.addConstraint(Sketcher.Constraint("Block", 59))
sketch1.addConstraint(Sketcher.Constraint("Block", 60))
sketch1.addConstraint(Sketcher.Constraint("Block", 61))
sketch1.addConstraint(Sketcher.Constraint("Block", 62))
sketch1.addConstraint(Sketcher.Constraint("Block", 63))
sketch1.addConstraint(Sketcher.Constraint("Block", 64))
sketch1.addConstraint(Sketcher.Constraint("Block", 65))
sketch1.addConstraint(Sketcher.Constraint("Block", 66))
sketch1.addConstraint(Sketcher.Constraint("Block", 67))
sketch1.addConstraint(Sketcher.Constraint("Block", 68))
sketch1.addConstraint(Sketcher.Constraint("Block", 69))
sketch1.addConstraint(Sketcher.Constraint("Block", 70))
sketch1.addConstraint(Sketcher.Constraint("Block", 71))
sketch1.addConstraint(Sketcher.Constraint("Block", 72))
sketch1.addConstraint(Sketcher.Constraint("Block", 73))
sketch1.addConstraint(Sketcher.Constraint("Block", 74))
sketch1.addConstraint(Sketcher.Constraint("Block", 75))
sketch1.addConstraint(Sketcher.Constraint("Block", 79))
sketch1.addConstraint(Sketcher.Constraint("Block", 80))
sketch1.addConstraint(Sketcher.Constraint("Block", 81))
sketch1.addConstraint(Sketcher.Constraint("Block", 82))
sketch1.addConstraint(Sketcher.Constraint("Block", 83))
sketch1.addConstraint(Sketcher.Constraint("Block", 84))
sketch1.addConstraint(Sketcher.Constraint("Block", 85))
sketch1.addConstraint(Sketcher.Constraint("Block", 86))
sketch1.addConstraint(Sketcher.Constraint("Block", 87))
sketch1.addConstraint(Sketcher.Constraint("Coincident", 0, 2, 1, 1))
sketch1.addConstraint(Sketcher.Constraint("Coincident", 1, 2, 2, 1))
sketch1.addConstraint(Sketcher.Constraint("Coincident", 11, 2, 12, 1))
sketch1.addConstraint(Sketcher.Constraint("Coincident", 12, 2, 13, 1))
sketch1.addConstraint(Sketcher.Constraint("Coincident", 13, 2, 14, 1))
sketch1.addConstraint(Sketcher.Constraint("Coincident", 14, 2, 15, 1))
sketch1.addConstraint(Sketcher.Constraint("Coincident", 43, 2, 44, 1))
sketch1.addConstraint(Sketcher.Constraint("Coincident", 44, 2, 45, 1))
sketch1.addConstraint(Sketcher.Constraint("Coincident", 45, 2, 46, 1))
sketch1.addConstraint(Sketcher.Constraint("Coincident", 46, 2, 47, 1))
sketch1.addConstraint(Sketcher.Constraint("Coincident", 75, 2, 76, 1))
sketch1.addConstraint(Sketcher.Constraint("Coincident", 76, 2, 77, 1))
sketch1.addConstraint(Sketcher.Constraint("Coincident", 77, 2, 78, 1))
sketch1.addConstraint(Sketcher.Constraint("Coincident", 78, 2, 79, 1))
sketch1.addConstraint(Sketcher.Constraint("Vertical", 12))
sketch1.addConstraint(Sketcher.Constraint("Horizontal", 13))
sketch1.addConstraint(Sketcher.Constraint("Vertical", 14))
sketch1.addConstraint(Sketcher.Constraint("Vertical", 44))
sketch1.addConstraint(Sketcher.Constraint("Horizontal", 45))
sketch1.addConstraint(Sketcher.Constraint("Vertical", 46))
sketch1.addConstraint(Sketcher.Constraint("Vertical", 76))
sketch1.addConstraint(Sketcher.Constraint("Horizontal", 77))
sketch1.addConstraint(Sketcher.Constraint("Vertical", 78))
sketch1.addConstraint(Sketcher.Constraint("Horizontal", 13, 2, 76, 2))
sketch1.addConstraint(Sketcher.Constraint("DistanceY", 12, 1, 12, 2, Q("1.9581 mm")))
sketch1.addConstraint(Sketcher.Constraint("DistanceY", 44, 1, 44, 2, Q("18.3481 mm")))
pad1 = body.newObject("PartDesign::Pad", "Pad")
pad1.Profile = sketch1
pad1.Length = 2
pad1.Midplane = True

doc.recompute()
